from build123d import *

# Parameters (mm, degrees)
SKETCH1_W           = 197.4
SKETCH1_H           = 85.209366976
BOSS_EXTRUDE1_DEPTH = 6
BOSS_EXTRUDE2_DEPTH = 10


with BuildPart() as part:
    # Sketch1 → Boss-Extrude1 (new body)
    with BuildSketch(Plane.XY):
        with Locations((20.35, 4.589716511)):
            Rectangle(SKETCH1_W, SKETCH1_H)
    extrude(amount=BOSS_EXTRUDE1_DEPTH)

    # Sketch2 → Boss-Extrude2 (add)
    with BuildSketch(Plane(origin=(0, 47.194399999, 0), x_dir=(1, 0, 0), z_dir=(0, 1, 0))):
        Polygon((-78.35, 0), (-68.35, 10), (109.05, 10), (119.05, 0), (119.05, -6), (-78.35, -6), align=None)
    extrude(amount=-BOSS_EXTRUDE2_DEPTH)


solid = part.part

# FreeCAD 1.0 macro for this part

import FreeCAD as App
import Part
import Sketcher

V = App.Vector
Q = App.Units.Quantity

doc = App.newDocument("Part")
body = doc.addObject("PartDesign::Body", "Body")

# Sketch on XY plane
sketch1 = doc.addObject("Sketcher::SketchObject", "Sketch")
body.addObject(sketch1)
sketch1.AttachmentSupport = (doc.XY_Plane, [""])
sketch1.MapMode = "FlatFace"
sketch1.addGeometry([
    Part.LineSegment(V(-78, 47, 0), V(-78, -38, 0)),
    Part.LineSegment(V(-78, -38, 0), V(119, -38, 0)),
    Part.LineSegment(V(119, -38, 0), V(119, 47, 0)),
    Part.LineSegment(V(119, 47, 0), V(-78, 47, 0)),
], False)
sketch1.addConstraint([
    Sketcher.Constraint("Coincident", 0, 2, 1, 1),
    Sketcher.Constraint("Coincident", 1, 2, 2, 1),
    Sketcher.Constraint("Coincident", 2, 2, 3, 1),
    Sketcher.Constraint("Coincident", 3, 2, 0, 1),
    Sketcher.Constraint("Vertical", 0),
    Sketcher.Constraint("Horizontal", 1),
    Sketcher.Constraint("Vertical", 2),
    Sketcher.Constraint("Horizontal", 3),
    Sketcher.Constraint("DistanceX", 1, 1, 1, 2, Q("197.4 mm")),
    Sketcher.Constraint("DistanceX", 0, 2, -1, 1, Q("78.35 mm")),
    Sketcher.Constraint("DistanceY", -1, 1, 2, 2, Q("47.1944 mm")),
    Sketcher.Constraint("DistanceY", 0, 2, 0, 1, Q("85.209367 mm")),
])
pad1 = doc.addObject("PartDesign::Pad", "Pad")
body.addObject(pad1)
pad1.Profile = sketch1
pad1.Length = 6

# Sketch on XZ plane
sketch2 = doc.addObject("Sketcher::SketchObject", "Sketch001")
body.addObject(sketch2)
sketch2.AttachmentSupport = (doc.XZ_Plane, [""])
sketch2.MapMode = "FlatFace"
sketch2.AttachmentOffset = App.Placement(V(0, 0, -47.1944), App.Rotation())
sketch2.addGeometry([
    Part.LineSegment(V(-68, -10, 0), V(-78, 0, 0)),  # 0
    Part.LineSegment(V(-78, 0, 0), V(-78, 6, 0)),  # 1
    Part.LineSegment(V(-78, 6, 0), V(119, 6, 0)),  # 2
    Part.LineSegment(V(119, 6, 0), V(119, 0, 0)),  # 3
    Part.LineSegment(V(119, 0, 0), V(109, -10, 0)),  # 4
    Part.LineSegment(V(109, -10, 0), V(-68, -10, 0)),  # 5
], False)
sketch2.addConstraint([
    Sketcher.Constraint("Coincident", 0, 2, 1, 1),
    Sketcher.Constraint("Coincident", 1, 2, 2, 1),
    Sketcher.Constraint("Coincident", 2, 2, 3, 1),
    Sketcher.Constraint("Coincident", 3, 2, 4, 1),
    Sketcher.Constraint("Coincident", 4, 2, 5, 1),
    Sketcher.Constraint("Coincident", 5, 2, 0, 1),
    Sketcher.Constraint("Vertical", 1),
    Sketcher.Constraint("Horizontal", 2),
    Sketcher.Constraint("Vertical", 3),
    Sketcher.Constraint("Horizontal", 5),
    Sketcher.Constraint("PointOnObject", 0, 2, -1),
    Sketcher.Constraint("PointOnObject", 3, 2, -1),
    Sketcher.Constraint("Perpendicular", 0, 4),
    Sketcher.Constraint("Equal", 0, 4),
    Sketcher.Constraint("DistanceY", 1, 1, 1, 2, Q("6 mm")),
    Sketcher.Constraint("DistanceX", 2, 1, 2, 2, Q("197.4 mm")),
    Sketcher.Constraint("DistanceX", 5, 2, 5, 1, Q("177.4 mm")),
    Sketcher.Constraint("DistanceX", 0, 2, -1, 1, Q("78.35 mm")),
])
pad2 = doc.addObject("PartDesign::Pad", "Pad001")
body.addObject(pad2)
pad2.Profile = sketch2
pad2.Length = 10

doc.recompute()
